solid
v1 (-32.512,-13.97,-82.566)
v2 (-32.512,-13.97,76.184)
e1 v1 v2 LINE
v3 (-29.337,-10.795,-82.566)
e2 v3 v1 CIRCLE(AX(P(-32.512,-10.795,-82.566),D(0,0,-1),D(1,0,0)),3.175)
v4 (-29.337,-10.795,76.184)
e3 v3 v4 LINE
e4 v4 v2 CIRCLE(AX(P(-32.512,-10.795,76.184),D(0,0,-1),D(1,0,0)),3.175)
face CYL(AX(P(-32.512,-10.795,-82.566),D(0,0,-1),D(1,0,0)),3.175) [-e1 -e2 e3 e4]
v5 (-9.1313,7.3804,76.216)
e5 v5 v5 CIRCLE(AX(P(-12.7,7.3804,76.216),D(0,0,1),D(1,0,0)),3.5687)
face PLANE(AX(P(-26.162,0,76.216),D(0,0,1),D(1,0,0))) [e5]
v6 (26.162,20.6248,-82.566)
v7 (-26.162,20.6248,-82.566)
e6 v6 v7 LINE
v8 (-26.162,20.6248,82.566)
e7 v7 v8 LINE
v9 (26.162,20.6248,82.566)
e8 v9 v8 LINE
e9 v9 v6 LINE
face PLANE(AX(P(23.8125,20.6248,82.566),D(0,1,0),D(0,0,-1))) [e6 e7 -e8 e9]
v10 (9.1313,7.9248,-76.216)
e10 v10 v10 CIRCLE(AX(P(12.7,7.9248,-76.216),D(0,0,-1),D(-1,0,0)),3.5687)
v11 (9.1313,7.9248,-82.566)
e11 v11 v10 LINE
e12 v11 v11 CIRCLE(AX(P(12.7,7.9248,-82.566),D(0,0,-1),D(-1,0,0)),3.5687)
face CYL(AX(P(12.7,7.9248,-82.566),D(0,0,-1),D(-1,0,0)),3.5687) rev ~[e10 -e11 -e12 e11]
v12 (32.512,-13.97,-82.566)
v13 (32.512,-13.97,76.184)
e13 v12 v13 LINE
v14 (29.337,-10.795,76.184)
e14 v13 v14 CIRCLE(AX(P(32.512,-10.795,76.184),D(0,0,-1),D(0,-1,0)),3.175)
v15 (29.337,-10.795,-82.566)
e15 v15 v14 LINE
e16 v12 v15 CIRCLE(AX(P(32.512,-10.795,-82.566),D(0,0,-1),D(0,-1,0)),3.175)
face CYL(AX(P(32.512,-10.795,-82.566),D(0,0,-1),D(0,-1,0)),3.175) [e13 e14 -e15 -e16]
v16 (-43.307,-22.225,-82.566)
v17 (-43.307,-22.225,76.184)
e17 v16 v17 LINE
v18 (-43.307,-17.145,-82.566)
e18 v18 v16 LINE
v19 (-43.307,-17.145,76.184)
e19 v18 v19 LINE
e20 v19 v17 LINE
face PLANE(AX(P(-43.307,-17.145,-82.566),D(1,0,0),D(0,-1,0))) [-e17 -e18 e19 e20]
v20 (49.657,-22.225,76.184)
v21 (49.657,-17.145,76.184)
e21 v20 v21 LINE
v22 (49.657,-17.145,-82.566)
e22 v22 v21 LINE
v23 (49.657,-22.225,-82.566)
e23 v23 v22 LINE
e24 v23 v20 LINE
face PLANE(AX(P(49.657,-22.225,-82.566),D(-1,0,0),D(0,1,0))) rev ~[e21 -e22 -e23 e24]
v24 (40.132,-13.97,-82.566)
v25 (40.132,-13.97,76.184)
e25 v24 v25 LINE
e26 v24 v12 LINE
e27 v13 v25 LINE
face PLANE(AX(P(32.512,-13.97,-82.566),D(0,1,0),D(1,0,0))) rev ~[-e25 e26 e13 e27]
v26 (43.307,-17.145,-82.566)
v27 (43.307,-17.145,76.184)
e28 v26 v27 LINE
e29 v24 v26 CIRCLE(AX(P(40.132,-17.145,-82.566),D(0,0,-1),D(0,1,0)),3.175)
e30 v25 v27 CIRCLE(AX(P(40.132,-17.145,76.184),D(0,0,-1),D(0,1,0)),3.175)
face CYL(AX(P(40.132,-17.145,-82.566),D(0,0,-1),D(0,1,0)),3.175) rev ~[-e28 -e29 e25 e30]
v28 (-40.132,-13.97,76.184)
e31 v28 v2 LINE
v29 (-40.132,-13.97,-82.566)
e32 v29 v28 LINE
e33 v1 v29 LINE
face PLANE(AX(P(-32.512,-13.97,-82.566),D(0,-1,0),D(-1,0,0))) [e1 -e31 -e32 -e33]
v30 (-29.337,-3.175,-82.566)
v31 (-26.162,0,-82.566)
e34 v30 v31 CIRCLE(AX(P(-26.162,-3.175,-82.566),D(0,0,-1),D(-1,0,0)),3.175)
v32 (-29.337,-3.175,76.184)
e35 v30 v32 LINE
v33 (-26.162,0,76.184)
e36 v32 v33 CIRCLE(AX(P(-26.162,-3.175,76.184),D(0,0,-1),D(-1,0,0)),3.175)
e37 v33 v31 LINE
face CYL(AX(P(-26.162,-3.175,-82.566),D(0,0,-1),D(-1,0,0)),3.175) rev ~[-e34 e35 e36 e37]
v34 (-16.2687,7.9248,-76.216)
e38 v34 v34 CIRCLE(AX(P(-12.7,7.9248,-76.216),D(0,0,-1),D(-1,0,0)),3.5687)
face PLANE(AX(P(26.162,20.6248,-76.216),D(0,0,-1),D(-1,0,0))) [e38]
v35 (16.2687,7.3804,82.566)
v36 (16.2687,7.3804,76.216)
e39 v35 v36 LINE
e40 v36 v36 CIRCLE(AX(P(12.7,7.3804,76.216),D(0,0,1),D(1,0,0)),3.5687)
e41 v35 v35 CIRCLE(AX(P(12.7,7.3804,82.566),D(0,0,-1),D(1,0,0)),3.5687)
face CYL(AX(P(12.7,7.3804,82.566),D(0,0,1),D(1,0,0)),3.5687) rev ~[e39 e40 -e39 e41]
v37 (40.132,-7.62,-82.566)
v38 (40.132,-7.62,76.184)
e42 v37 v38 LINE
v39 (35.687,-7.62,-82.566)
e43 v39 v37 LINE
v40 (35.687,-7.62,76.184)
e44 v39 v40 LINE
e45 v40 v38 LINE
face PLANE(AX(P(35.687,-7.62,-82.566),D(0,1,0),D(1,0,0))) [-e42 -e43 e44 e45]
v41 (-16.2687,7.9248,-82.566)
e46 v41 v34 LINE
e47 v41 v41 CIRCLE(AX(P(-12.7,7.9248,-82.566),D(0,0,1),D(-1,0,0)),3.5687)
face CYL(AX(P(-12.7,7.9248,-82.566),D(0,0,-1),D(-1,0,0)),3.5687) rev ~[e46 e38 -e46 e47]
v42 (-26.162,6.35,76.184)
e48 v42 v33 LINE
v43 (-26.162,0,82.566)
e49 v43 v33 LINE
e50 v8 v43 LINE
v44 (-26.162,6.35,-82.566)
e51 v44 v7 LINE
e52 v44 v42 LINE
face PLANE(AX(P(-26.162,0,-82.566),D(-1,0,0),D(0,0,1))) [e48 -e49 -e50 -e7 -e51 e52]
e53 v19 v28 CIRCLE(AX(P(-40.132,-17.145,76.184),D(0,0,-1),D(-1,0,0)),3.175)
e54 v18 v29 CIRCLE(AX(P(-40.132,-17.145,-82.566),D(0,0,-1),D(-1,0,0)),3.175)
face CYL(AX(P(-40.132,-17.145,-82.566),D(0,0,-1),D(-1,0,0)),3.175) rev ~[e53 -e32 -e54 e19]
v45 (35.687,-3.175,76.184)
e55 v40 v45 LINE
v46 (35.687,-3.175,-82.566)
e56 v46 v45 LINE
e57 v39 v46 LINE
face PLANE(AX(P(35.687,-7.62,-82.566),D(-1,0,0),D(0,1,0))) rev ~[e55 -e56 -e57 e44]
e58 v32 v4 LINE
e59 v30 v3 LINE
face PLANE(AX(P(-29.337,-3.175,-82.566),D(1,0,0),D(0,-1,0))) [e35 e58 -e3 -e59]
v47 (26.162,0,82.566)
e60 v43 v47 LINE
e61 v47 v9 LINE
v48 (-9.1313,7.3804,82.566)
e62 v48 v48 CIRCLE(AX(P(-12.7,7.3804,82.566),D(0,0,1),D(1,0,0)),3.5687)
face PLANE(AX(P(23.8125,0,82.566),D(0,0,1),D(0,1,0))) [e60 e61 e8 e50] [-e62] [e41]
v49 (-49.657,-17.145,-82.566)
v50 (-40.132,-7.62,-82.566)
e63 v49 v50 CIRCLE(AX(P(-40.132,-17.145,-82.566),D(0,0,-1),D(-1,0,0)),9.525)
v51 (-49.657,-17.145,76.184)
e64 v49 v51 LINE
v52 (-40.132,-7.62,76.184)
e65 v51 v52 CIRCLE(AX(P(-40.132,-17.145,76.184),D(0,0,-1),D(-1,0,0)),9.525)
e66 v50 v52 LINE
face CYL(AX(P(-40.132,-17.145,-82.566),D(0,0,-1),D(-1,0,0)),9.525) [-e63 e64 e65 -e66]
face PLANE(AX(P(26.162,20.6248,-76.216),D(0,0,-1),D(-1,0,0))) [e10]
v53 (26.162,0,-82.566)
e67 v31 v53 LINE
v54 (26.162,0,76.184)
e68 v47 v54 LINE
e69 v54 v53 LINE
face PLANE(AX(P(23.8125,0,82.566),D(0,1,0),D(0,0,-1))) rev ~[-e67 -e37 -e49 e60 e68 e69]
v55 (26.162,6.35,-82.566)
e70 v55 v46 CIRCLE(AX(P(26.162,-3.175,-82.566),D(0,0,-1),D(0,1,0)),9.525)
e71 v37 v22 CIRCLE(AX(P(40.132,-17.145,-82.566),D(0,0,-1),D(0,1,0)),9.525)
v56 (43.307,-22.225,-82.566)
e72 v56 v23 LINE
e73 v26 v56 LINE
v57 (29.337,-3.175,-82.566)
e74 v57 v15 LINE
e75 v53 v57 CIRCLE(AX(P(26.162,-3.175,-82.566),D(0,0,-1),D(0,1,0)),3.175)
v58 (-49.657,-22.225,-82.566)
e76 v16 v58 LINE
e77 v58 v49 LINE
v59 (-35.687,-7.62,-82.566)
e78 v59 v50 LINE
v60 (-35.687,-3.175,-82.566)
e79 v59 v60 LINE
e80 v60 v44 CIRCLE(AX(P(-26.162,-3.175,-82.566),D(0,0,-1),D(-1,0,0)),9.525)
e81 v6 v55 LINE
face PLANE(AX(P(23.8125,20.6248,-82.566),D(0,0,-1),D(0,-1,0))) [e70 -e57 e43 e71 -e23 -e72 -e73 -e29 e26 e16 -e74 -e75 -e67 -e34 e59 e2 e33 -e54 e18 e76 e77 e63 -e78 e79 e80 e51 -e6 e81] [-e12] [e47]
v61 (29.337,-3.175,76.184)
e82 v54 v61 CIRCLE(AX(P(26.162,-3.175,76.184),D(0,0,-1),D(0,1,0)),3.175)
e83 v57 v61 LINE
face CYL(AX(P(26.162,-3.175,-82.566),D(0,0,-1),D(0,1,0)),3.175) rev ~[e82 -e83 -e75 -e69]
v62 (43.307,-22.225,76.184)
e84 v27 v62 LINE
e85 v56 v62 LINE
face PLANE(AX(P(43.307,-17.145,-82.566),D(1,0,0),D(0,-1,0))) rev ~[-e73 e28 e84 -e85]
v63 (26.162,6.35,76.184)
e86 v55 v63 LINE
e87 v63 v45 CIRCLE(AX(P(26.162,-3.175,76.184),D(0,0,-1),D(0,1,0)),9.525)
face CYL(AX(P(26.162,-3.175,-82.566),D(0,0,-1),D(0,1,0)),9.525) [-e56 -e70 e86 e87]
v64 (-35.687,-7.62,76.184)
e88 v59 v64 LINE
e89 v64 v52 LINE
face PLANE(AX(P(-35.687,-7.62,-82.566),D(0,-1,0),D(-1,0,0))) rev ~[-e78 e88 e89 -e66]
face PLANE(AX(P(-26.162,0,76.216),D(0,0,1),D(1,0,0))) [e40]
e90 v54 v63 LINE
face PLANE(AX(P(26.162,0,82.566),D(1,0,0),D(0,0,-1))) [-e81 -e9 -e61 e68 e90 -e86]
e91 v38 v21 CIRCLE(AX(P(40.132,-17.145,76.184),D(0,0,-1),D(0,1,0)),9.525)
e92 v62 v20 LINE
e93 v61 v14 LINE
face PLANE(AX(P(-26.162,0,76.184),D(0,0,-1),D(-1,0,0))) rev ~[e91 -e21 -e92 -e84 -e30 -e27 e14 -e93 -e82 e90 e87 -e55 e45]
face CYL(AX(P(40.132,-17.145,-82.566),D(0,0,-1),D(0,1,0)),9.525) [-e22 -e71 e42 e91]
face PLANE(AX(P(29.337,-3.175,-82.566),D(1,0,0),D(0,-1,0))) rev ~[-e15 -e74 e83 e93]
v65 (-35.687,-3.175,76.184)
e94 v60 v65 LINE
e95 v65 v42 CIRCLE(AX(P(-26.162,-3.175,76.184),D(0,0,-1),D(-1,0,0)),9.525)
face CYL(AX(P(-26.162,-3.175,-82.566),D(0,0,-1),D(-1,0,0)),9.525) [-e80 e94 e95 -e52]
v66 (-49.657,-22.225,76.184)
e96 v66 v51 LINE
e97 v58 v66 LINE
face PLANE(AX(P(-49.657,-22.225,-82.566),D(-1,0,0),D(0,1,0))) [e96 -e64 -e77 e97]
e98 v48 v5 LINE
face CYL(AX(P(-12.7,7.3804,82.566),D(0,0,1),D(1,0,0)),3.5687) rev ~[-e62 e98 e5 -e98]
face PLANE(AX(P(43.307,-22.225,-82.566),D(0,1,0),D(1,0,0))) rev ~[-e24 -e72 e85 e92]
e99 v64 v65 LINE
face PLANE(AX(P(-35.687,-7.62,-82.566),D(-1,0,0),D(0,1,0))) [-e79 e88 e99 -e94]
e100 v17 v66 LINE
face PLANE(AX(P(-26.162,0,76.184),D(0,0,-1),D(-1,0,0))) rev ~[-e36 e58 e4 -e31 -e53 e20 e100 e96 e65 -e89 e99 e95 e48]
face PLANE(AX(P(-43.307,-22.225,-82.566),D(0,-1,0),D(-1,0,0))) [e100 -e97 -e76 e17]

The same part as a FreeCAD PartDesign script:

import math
import FreeCAD as App
import Part
import Sketcher
Q = App.Units.Quantity

doc = App.newDocument("Part")
params = doc.addObject("Spreadsheet::Sheet", "Params")
for row, (alias, value) in enumerate([
    ("sketch1_width", "1.875 in"),
    ("pad1_length", "0.812 in"),
    ("sketch2_width", "0.812 in"),
    ("pad2_length", "0.0925 in"),
    ("sketch3_width", "0.812 in"),
    ("pad3_length", "0.0925 in"),
    ("sketch4_width", "0.3 in"),
    ("sketch4_height", "0.2 in"),
    ("sketch4_radius", "0.125 in"),
    ("sketch4_width2", "0.25 in"),
    ("pad4_length", "6.25 in"),
    ("sketch5_diameter", "0.281 in"),
    ("pocket1_length", "0.25 in"),
    ("sketch6_diameter", "0.281 in"),
    ("pocket2_length", "0.25 in"),
], start=1):
    params.set(f"A{row}", alias)
    params.set(f"B{row}", "=" + value)
    params.setAlias(f"B{row}", alias)

body = doc.addObject("PartDesign::Body", "Body")

sketch1 = doc.addObject("Sketcher::SketchObject", "Sketch")
body.addObject(sketch1)
sketch1.AttachmentSupport = (doc.XZ_Plane, [""])
sketch1.MapMode = "FlatFace"
sketch1.addGeometry([
    Part.LineSegment(App.Vector(24, 83, 0), App.Vector(24, -83, 0)),
    Part.LineSegment(App.Vector(24, -83, 0), App.Vector(-24, -83, 0)),
    Part.LineSegment(App.Vector(-24, -83, 0), App.Vector(-24, 83, 0)),
    Part.LineSegment(App.Vector(-24, 83, 0), App.Vector(24, 83, 0)),
], False)
sketch1.addConstraint([
    Sketcher.Constraint("Coincident", 0, 2, 1, 1),
    Sketcher.Constraint("Coincident", 1, 2, 2, 1),
    Sketcher.Constraint("Coincident", 2, 2, 3, 1),
    Sketcher.Constraint("Coincident", 3, 2, 0, 1),
    Sketcher.Constraint("Vertical", 0),
    Sketcher.Constraint("Horizontal", 1),
    Sketcher.Constraint("Vertical", 2),
    Sketcher.Constraint("Horizontal", 3),
    Sketcher.Constraint("Symmetric", 0, 2, 2, 2, -1, 1),
    Sketcher.Constraint("DistanceX", 1, 2, 1, 1, Q("1.875 in")),
    Sketcher.Constraint("DistanceY", 0, 2, 0, 1, 165.132),
])
sketch1.setExpression("Constraints[9]", "Params.sketch1_width")
pad1 = doc.addObject("PartDesign::Pad", "Pad")
body.addObject(pad1)
pad1.Profile = sketch1
pad1.setExpression("Length", "Params.pad1_length")
pad1.Reversed = True

sketch2 = doc.addObject("Sketcher::SketchObject", "Sketch001")
body.addObject(sketch2)
sketch2.AttachmentSupport = (doc.YZ_Plane, [""])
sketch2.MapMode = "FlatFace"
sketch2.AttachmentOffset = App.Placement(App.Vector(0, 0, -0.9375 * 25.4), App.Rotation())
sketch2.addGeometry([
    Part.LineSegment(App.Vector(21, 83, 0), App.Vector(21, -83, 0)),
    Part.LineSegment(App.Vector(21, -83, 0), App.Vector(0, -83, 0)),
    Part.LineSegment(App.Vector(0, -83, 0), App.Vector(0, 83, 0)),
    Part.LineSegment(App.Vector(0, 83, 0), App.Vector(21, 83, 0)),
], False)
sketch2.addConstraint([
    Sketcher.Constraint("Coincident", 0, 2, 1, 1),
    Sketcher.Constraint("Coincident", 1, 2, 2, 1),
    Sketcher.Constraint("Coincident", 2, 2, 3, 1),
    Sketcher.Constraint("Coincident", 3, 2, 0, 1),
    Sketcher.Constraint("Vertical", 0),
    Sketcher.Constraint("Horizontal", 1),
    Sketcher.Constraint("Vertical", 2),
    Sketcher.Constraint("Horizontal", 3),
    Sketcher.Constraint("Symmetric", 1, 2, 2, 2, -1, 1),
    Sketcher.Constraint("DistanceX", 1, 2, 1, 1, Q("0.812 in")),
    Sketcher.Constraint("DistanceY", 0, 2, 0, 1, 165.132),
])
sketch2.setExpression("Constraints[9]", "Params.sketch2_width")
pad2 = doc.addObject("PartDesign::Pad", "Pad001")
body.addObject(pad2)
pad2.Profile = sketch2
pad2.setExpression("Length", "Params.pad2_length")
pad2.Reversed = True

sketch3 = doc.addObject("Sketcher::SketchObject", "Sketch002")
body.addObject(sketch3)
sketch3.AttachmentSupport = (doc.YZ_Plane, [""])
sketch3.MapMode = "FlatFace"
sketch3.AttachmentOffset = App.Placement(App.Vector(0, 0, 0.9375 * 25.4), App.Rotation())
sketch3.addGeometry([
    Part.LineSegment(App.Vector(21, 83, 0), App.Vector(0, 83, 0)),
    Part.LineSegment(App.Vector(0, 83, 0), App.Vector(0, -83, 0)),
    Part.LineSegment(App.Vector(0, -83, 0), App.Vector(21, -83, 0)),
    Part.LineSegment(App.Vector(21, -83, 0), App.Vector(21, 83, 0)),
], False)
sketch3.addConstraint([
    Sketcher.Constraint("Coincident", 0, 2, 1, 1),
    Sketcher.Constraint("Coincident", 1, 2, 2, 1),
    Sketcher.Constraint("Coincident", 2, 2, 3, 1),
    Sketcher.Constraint("Coincident", 3, 2, 0, 1),
    Sketcher.Constraint("Horizontal", 0),
    Sketcher.Constraint("Vertical", 1),
    Sketcher.Constraint("Horizontal", 2),
    Sketcher.Constraint("Vertical", 3),
    Sketcher.Constraint("Symmetric", 0, 2, 1, 2, -1, 1),
    Sketcher.Constraint("DistanceX", 0, 2, 0, 1, Q("0.812 in")),
    Sketcher.Constraint("DistanceY", 1, 2, 1, 1, 165.132),
])
sketch3.setExpression("Constraints[9]", "Params.sketch3_width")
pad3 = doc.addObject("PartDesign::Pad", "Pad002")
body.addObject(pad3)
pad3.Profile = sketch3
pad3.setExpression("Length", "Params.pad3_length")

sketch4 = doc.addObject("Sketcher::SketchObject", "Sketch003")
body.addObject(sketch4)
sketch4.AttachmentSupport = (doc.XY_Plane, [""])
sketch4.MapMode = "FlatFace"
sketch4.AttachmentOffset = App.Placement(App.Vector(0, 0, -82.566), App.Rotation())
sketch4.addGeometry([
    Part.ArcOfCircle(Part.Circle(App.Vector(26.2, -3.2, 0), App.Vector(0, 0, 1), 3.2), math.radians(0), math.radians(90)),
    Part.LineSegment(App.Vector(26.2, 0, 0), App.Vector(26.2, 6.3, 0)),
    Part.ArcOfCircle(Part.Circle(App.Vector(26.2, -3.2, 0), App.Vector(0, 0, 1), 9.5), math.radians(0), math.radians(90)),
    Part.LineSegment(App.Vector(35.7, -3.2, 0), App.Vector(35.7, -7.6, 0)),
    Part.LineSegment(App.Vector(35.7, -7.6, 0), App.Vector(40.1, -7.6, 0)),
    Part.ArcOfCircle(Part.Circle(App.Vector(40.1, -17.1, 0), App.Vector(0, 0, 1), 9.5), math.radians(0), math.radians(90)),
    Part.LineSegment(App.Vector(49.7, -17.1, 0), App.Vector(49.7, -22.2, 0)),
    Part.LineSegment(App.Vector(49.7, -22.2, 0), App.Vector(43.3, -22.2, 0)),
    Part.LineSegment(App.Vector(43.3, -22.2, 0), App.Vector(43.3, -17.1, 0)),
    Part.ArcOfCircle(Part.Circle(App.Vector(40.1, -17.1, 0), App.Vector(0, 0, 1), 3.2), math.radians(0), math.radians(90)),
    Part.LineSegment(App.Vector(40.1, -14, 0), App.Vector(32.5, -14, 0)),
    Part.ArcOfCircle(Part.Circle(App.Vector(32.5, -10.8, 0), App.Vector(0, 0, 1), 3.2), math.radians(180), math.radians(270)),
    Part.LineSegment(App.Vector(29.3, -10.8, 0), App.Vector(29.3, -3.2, 0)),
    Part.LineSegment(App.Vector(-26.2, 6.3, 0), App.Vector(-26.2, 0, 0)),
    Part.ArcOfCircle(Part.Circle(App.Vector(-26.2, -3.2, 0), App.Vector(0, 0, 1), 3.2), math.radians(90), math.radians(180)),
    Part.LineSegment(App.Vector(-29.3, -3.2, 0), App.Vector(-29.3, -10.8, 0)),
    Part.ArcOfCircle(Part.Circle(App.Vector(-32.5, -10.8, 0), App.Vector(0, 0, 1), 3.2), math.radians(-90), math.radians(0)),
    Part.LineSegment(App.Vector(-32.5, -14, 0), App.Vector(-40.1, -14, 0)),
    Part.ArcOfCircle(Part.Circle(App.Vector(-40.1, -17.1, 0), App.Vector(0, 0, 1), 3.2), math.radians(90), math.radians(180)),
    Part.LineSegment(App.Vector(-43.3, -17.1, 0), App.Vector(-43.3, -22.2, 0)),
    Part.LineSegment(App.Vector(-43.3, -22.2, 0), App.Vector(-49.7, -22.2, 0)),
    Part.LineSegment(App.Vector(-49.7, -22.2, 0), App.Vector(-49.7, -17.1, 0)),
    Part.ArcOfCircle(Part.Circle(App.Vector(-40.1, -17.1, 0), App.Vector(0, 0, 1), 9.5), math.radians(90), math.radians(180)),
    Part.LineSegment(App.Vector(-40.1, -7.6, 0), App.Vector(-35.7, -7.6, 0)),
    Part.LineSegment(App.Vector(-35.7, -7.6, 0), App.Vector(-35.7, -3.2, 0)),
    Part.ArcOfCircle(Part.Circle(App.Vector(-26.2, -3.2, 0), App.Vector(0, 0, 1), 9.5), math.radians(90), math.radians(180)),
], False)
sketch4.addConstraint([
    Sketcher.Constraint("Coincident", 0, 2, 1, 1),
    Sketcher.Constraint("Coincident", 1, 2, 2, 2),
    Sketcher.Constraint("Tangent", 2, 1, 3, 1),
    Sketcher.Constraint("Coincident", 3, 2, 4, 1),
    Sketcher.Constraint("Tangent", 4, 2, 5, 2),
    Sketcher.Constraint("Tangent", 5, 1, 6, 1),
    Sketcher.Constraint("Coincident", 6, 2, 7, 1),
    Sketcher.Constraint("Coincident", 7, 2, 8, 1),
    Sketcher.Constraint("Tangent", 8, 2, 9, 1),
    Sketcher.Constraint("Tangent", 9, 2, 10, 1),
    Sketcher.Constraint("Tangent", 10, 2, 11, 2),
    Sketcher.Constraint("Tangent", 11, 1, 12, 1),
    Sketcher.Constraint("Tangent", 12, 2, 0, 1),
    Sketcher.Constraint("Coincident", 13, 2, 14, 1),
    Sketcher.Constraint("Tangent", 14, 2, 15, 1),
    Sketcher.Constraint("Tangent", 15, 2, 16, 2),
    Sketcher.Constraint("Tangent", 16, 1, 17, 1),
    Sketcher.Constraint("Tangent", 17, 2, 18, 1),
    Sketcher.Constraint("Tangent", 18, 2, 19, 1),
    Sketcher.Constraint("Coincident", 19, 2, 20, 1),
    Sketcher.Constraint("Coincident", 20, 2, 21, 1),
    Sketcher.Constraint("Tangent", 21, 2, 22, 2),
    Sketcher.Constraint("Tangent", 22, 1, 23, 1),
    Sketcher.Constraint("Coincident", 23, 2, 24, 1),
    Sketcher.Constraint("Tangent", 24, 2, 25, 2),
    Sketcher.Constraint("Coincident", 25, 1, 13, 1),
    Sketcher.Constraint("Vertical", 1),
    Sketcher.Constraint("Vertical", 3),
    Sketcher.Constraint("Horizontal", 4),
    Sketcher.Constraint("Vertical", 6),
    Sketcher.Constraint("Horizontal", 7),
    Sketcher.Constraint("Vertical", 8),
    Sketcher.Constraint("Horizontal", 10),
    Sketcher.Constraint("Vertical", 12),
    Sketcher.Constraint("Vertical", 13),
    Sketcher.Constraint("Vertical", 15),
    Sketcher.Constraint("Horizontal", 17),
    Sketcher.Constraint("Vertical", 19),
    Sketcher.Constraint("Horizontal", 20),
    Sketcher.Constraint("Vertical", 21),
    Sketcher.Constraint("Horizontal", 23),
    Sketcher.Constraint("Vertical", 24),
    Sketcher.Constraint("Coincident", 2, 3, 0, 3),
    Sketcher.Constraint("Coincident", 9, 3, 5, 3),
    Sketcher.Constraint("Coincident", 22, 3, 18, 3),
    Sketcher.Constraint("Coincident", 25, 3, 14, 3),
    Sketcher.Constraint("Equal", 2, 5),
    Sketcher.Constraint("Equal", 0, 9),
    Sketcher.Constraint("Equal", 9, 11),
    Sketcher.Constraint("Equal", 11, 14),
    Sketcher.Constraint("Equal", 14, 16),
    Sketcher.Constraint("Equal", 16, 18),
    Sketcher.Constraint("Equal", 5, 22),
    Sketcher.Constraint("Equal", 22, 25),
    Sketcher.Constraint("Symmetric", 0, 2, 13, 2, -1, 1),
    Sketcher.Constraint("Symmetric", 0, 3, 14, 3, -2),
    Sketcher.Constraint("Symmetric", 5, 3, 18, 3, -2),
    Sketcher.Constraint("Horizontal", 7, 2, 19, 2),
    Sketcher.Constraint("Vertical", 2, 3, 0, 2),
    Sketcher.Constraint("Equal", 23, 3),
    Sketcher.Constraint("DistanceX", 10, 2, 10, 1, Q("0.3 in")),
    Sketcher.Constraint("DistanceY", 6, 2, 6, 1, Q("0.2 in")),
    Sketcher.Constraint("Radius", 0, Q("0.125 in")),
    Sketcher.Constraint("DistanceX", 7, 2, 7, 1, Q("0.25 in")),
    Sketcher.Constraint("DistanceX", -1, 1, 0, 3, Q("1.03 in")),
])
sketch4.setExpression("Constraints[60]", "Params.sketch4_width")
sketch4.setExpression("Constraints[61]", "Params.sketch4_height")
sketch4.setExpression("Constraints[62]", "Params.sketch4_radius")
sketch4.setExpression("Constraints[63]", "Params.sketch4_width2")
pad4 = doc.addObject("PartDesign::Pad", "Pad003")
body.addObject(pad4)
pad4.Profile = sketch4
pad4.setExpression("Length", "Params.pad4_length")

sketch5 = doc.addObject("Sketcher::SketchObject", "Sketch004")
body.addObject(sketch5)
sketch5.AttachmentSupport = (doc.XY_Plane, [""])
sketch5.MapMode = "FlatFace"
sketch5.AttachmentOffset = App.Placement(App.Vector(0, 0, 82.566), App.Rotation())
sketch5.addGeometry([
    Part.Circle(App.Vector(12.7, 7.4, 0), App.Vector(0, 0, 1), 3.6),
    Part.Circle(App.Vector(-12.7, 7.4, 0), App.Vector(0, 0, 1), 3.6),
], False)
sketch5.addConstraint([
    Sketcher.Constraint("Equal", 0, 1),
    Sketcher.Constraint("Symmetric", 0, 3, 1, 3, -2),
    Sketcher.Constraint("Diameter", 0, Q("0.281 in")),
    Sketcher.Constraint("DistanceX", -1, 1, 0, 3, Q("0.5 in")),
    Sketcher.Constraint("DistanceY", -1, 1, 0, 3, 7.3804),
])
sketch5.setExpression("Constraints[2]", "Params.sketch5_diameter")
pocket1 = doc.addObject("PartDesign::Pocket", "Pocket")
body.addObject(pocket1)
pocket1.Profile = sketch5
pocket1.setExpression("Length", "Params.pocket1_length")

sketch6 = doc.addObject("Sketcher::SketchObject", "Sketch005")
body.addObject(sketch6)
sketch6.AttachmentSupport = (doc.XY_Plane, [""])
sketch6.MapMode = "FlatFace"
sketch6.AttachmentOffset = App.Placement(App.Vector(0, 0, -82.566), App.Rotation())
sketch6.addGeometry([
    Part.Circle(App.Vector(-12.7, 7.9, 0), App.Vector(0, 0, 1), 3.6),
    Part.Circle(App.Vector(12.7, 7.9, 0), App.Vector(0, 0, 1), 3.6),
], False)
sketch6.addConstraint([
    Sketcher.Constraint("Equal", 0, 1),
    Sketcher.Constraint("Symmetric", 0, 3, 1, 3, -2),
    Sketcher.Constraint("Diameter", 0, Q("0.281 in")),
    Sketcher.Constraint("DistanceX", 0, 3, 1, 3, Q("1 in")),
    Sketcher.Constraint("DistanceY", -1, 1, 0, 3, Q("0.312 in")),
])
sketch6.setExpression("Constraints[2]", "Params.sketch6_diameter")
pocket2 = doc.addObject("PartDesign::Pocket", "Pocket001")
body.addObject(pocket2)
pocket2.Profile = sketch6
pocket2.setExpression("Length", "Params.pocket2_length")
pocket2.Reversed = True

doc.recompute()
